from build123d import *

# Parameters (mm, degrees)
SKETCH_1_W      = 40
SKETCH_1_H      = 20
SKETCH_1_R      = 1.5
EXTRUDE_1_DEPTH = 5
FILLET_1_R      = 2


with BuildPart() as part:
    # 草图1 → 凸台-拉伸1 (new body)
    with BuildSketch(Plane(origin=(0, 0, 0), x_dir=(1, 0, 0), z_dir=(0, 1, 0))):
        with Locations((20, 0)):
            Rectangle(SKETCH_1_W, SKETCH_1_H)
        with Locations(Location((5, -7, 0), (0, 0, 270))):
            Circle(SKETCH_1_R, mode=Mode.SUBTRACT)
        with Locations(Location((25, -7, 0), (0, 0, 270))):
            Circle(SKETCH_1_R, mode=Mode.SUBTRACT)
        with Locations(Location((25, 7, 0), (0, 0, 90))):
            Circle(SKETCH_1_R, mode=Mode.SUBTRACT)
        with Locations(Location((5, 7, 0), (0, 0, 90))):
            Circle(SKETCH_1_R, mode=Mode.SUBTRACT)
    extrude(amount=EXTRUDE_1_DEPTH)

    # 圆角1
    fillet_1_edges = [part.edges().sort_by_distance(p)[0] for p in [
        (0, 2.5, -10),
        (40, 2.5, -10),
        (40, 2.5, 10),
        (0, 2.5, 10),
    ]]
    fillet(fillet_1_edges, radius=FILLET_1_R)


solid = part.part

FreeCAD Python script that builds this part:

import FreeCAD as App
import Part
import Sketcher
from FreeCAD import Vector
Q = App.Units.Quantity


def edges_at(feature, points):
    """Names of the edges that pass closest to the given points."""
    edges = feature.Shape.Edges
    near = lambda p: min(range(len(edges)), key=lambda i: edges[i].distToShape(Part.Vertex(*p))[0])
    return sorted({f"Edge{near(p) + 1}" for p in points})

doc = App.newDocument("Part")
params = doc.addObject("Spreadsheet::Sheet", "Params")
for row, (alias, value) in enumerate([
    ("sketch1_diameter", "3 mm"),
    ("sketch1_width", "40 mm"),
    ("sketch1_height", "20 mm"),
    ("pad1_length", "5 mm"),
    ("fillet_radius", "2 mm"),
], start=1):
    params.set(f"A{row}", alias)
    params.set(f"B{row}", "=" + value)
    params.setAlias(f"B{row}", alias)

body = doc.addObject("PartDesign::Body", "Body")

# Sketch on XZ plane
sketch1 = body.newObject("Sketcher::SketchObject", "Sketch")
sketch1.AttachmentSupport = (doc.getObject("XZ_Plane"), [""])
sketch1.MapMode = "FlatFace"
sketch1.addGeometry(Part.LineSegment(Vector(0, -10, 0), Vector(0, 10, 0)), False)
sketch1.addGeometry(Part.LineSegment(Vector(0, 10, 0), Vector(40, 10, 0)), False)
sketch1.addGeometry(Part.LineSegment(Vector(40, 10, 0), Vector(40, -10, 0)), False)
sketch1.addGeometry(Part.LineSegment(Vector(40, -10, 0), Vector(0, -10, 0)), False)
sketch1.addGeometry(Part.Circle(Vector(5, 7, 0), Vector(0, 0, 1), 1.5), False)
sketch1.addGeometry(Part.Circle(Vector(25, 7, 0), Vector(0, 0, 1), 1.5), False)
sketch1.addGeometry(Part.Circle(Vector(5, -7, 0), Vector(0, 0, 1), 1.5), False)
sketch1.addGeometry(Part.Circle(Vector(25, -7, 0), Vector(0, 0, 1), 1.5), False)
sketch1.addConstraint(Sketcher.Constraint("Coincident", 0, 2, 1, 1))
sketch1.addConstraint(Sketcher.Constraint("Coincident", 1, 2, 2, 1))
sketch1.addConstraint(Sketcher.Constraint("Coincident", 2, 2, 3, 1))
sketch1.addConstraint(Sketcher.Constraint("Coincident", 3, 2, 0, 1))
sketch1.addConstraint(Sketcher.Constraint("Vertical", 0))
sketch1.addConstraint(Sketcher.Constraint("Horizontal", 1))
sketch1.addConstraint(Sketcher.Constraint("Vertical", 2))
sketch1.addConstraint(Sketcher.Constraint("Horizontal", 3))
sketch1.addConstraint(Sketcher.Constraint("Equal", 4, 5))
sketch1.addConstraint(Sketcher.Constraint("Equal", 5, 6))
sketch1.addConstraint(Sketcher.Constraint("Equal", 6, 7))
sketch1.addConstraint(Sketcher.Constraint("Symmetric", 0, 2, 3, 2, -1, 1))
sketch1.addConstraint(Sketcher.Constraint("Symmetric", 4, 3, 6, 3, -1))
sketch1.addConstraint(Sketcher.Constraint("Symmetric", 5, 3, 7, 3, -1))
sketch1.addConstraint(Sketcher.Constraint("Horizontal", 4, 3, 5, 3))
sketch1.addConstraint(Sketcher.Constraint("Diameter", 4, Q("3 mm")))
sketch1.addConstraint(Sketcher.Constraint("DistanceX", 1, 1, 1, 2, Q("40 mm")))
sketch1.addConstraint(Sketcher.Constraint("DistanceY", 0, 1, 0, 2, Q("20 mm")))
sketch1.addConstraint(Sketcher.Constraint("DistanceX", -1, 1, 4, 3, Q("5 mm")))
sketch1.addConstraint(Sketcher.Constraint("DistanceY", -1, 1, 4, 3, Q("7 mm")))
sketch1.addConstraint(Sketcher.Constraint("DistanceX", -1, 1, 5, 3, Q("25 mm")))
sketch1.setExpression("Constraints[15]", "Params.sketch1_diameter")
sketch1.setExpression("Constraints[16]", "Params.sketch1_width")
sketch1.setExpression("Constraints[17]", "Params.sketch1_height")
pad1 = body.newObject("PartDesign::Pad", "Pad")
pad1.Profile = sketch1
pad1.setExpression("Length", "Params.pad1_length")
pad1.Reversed = True
doc.recompute()

fillet = body.newObject("PartDesign::Fillet", "Fillet")
fillet.Base = (pad1, edges_at(pad1, [
    (0, 2.5, -10),
    (40, 2.5, -10),
    (40, 2.5, 10),
    (0, 2.5, 10),
]))
fillet.setExpression("Radius", "Params.fillet_radius")

doc.recompute()
